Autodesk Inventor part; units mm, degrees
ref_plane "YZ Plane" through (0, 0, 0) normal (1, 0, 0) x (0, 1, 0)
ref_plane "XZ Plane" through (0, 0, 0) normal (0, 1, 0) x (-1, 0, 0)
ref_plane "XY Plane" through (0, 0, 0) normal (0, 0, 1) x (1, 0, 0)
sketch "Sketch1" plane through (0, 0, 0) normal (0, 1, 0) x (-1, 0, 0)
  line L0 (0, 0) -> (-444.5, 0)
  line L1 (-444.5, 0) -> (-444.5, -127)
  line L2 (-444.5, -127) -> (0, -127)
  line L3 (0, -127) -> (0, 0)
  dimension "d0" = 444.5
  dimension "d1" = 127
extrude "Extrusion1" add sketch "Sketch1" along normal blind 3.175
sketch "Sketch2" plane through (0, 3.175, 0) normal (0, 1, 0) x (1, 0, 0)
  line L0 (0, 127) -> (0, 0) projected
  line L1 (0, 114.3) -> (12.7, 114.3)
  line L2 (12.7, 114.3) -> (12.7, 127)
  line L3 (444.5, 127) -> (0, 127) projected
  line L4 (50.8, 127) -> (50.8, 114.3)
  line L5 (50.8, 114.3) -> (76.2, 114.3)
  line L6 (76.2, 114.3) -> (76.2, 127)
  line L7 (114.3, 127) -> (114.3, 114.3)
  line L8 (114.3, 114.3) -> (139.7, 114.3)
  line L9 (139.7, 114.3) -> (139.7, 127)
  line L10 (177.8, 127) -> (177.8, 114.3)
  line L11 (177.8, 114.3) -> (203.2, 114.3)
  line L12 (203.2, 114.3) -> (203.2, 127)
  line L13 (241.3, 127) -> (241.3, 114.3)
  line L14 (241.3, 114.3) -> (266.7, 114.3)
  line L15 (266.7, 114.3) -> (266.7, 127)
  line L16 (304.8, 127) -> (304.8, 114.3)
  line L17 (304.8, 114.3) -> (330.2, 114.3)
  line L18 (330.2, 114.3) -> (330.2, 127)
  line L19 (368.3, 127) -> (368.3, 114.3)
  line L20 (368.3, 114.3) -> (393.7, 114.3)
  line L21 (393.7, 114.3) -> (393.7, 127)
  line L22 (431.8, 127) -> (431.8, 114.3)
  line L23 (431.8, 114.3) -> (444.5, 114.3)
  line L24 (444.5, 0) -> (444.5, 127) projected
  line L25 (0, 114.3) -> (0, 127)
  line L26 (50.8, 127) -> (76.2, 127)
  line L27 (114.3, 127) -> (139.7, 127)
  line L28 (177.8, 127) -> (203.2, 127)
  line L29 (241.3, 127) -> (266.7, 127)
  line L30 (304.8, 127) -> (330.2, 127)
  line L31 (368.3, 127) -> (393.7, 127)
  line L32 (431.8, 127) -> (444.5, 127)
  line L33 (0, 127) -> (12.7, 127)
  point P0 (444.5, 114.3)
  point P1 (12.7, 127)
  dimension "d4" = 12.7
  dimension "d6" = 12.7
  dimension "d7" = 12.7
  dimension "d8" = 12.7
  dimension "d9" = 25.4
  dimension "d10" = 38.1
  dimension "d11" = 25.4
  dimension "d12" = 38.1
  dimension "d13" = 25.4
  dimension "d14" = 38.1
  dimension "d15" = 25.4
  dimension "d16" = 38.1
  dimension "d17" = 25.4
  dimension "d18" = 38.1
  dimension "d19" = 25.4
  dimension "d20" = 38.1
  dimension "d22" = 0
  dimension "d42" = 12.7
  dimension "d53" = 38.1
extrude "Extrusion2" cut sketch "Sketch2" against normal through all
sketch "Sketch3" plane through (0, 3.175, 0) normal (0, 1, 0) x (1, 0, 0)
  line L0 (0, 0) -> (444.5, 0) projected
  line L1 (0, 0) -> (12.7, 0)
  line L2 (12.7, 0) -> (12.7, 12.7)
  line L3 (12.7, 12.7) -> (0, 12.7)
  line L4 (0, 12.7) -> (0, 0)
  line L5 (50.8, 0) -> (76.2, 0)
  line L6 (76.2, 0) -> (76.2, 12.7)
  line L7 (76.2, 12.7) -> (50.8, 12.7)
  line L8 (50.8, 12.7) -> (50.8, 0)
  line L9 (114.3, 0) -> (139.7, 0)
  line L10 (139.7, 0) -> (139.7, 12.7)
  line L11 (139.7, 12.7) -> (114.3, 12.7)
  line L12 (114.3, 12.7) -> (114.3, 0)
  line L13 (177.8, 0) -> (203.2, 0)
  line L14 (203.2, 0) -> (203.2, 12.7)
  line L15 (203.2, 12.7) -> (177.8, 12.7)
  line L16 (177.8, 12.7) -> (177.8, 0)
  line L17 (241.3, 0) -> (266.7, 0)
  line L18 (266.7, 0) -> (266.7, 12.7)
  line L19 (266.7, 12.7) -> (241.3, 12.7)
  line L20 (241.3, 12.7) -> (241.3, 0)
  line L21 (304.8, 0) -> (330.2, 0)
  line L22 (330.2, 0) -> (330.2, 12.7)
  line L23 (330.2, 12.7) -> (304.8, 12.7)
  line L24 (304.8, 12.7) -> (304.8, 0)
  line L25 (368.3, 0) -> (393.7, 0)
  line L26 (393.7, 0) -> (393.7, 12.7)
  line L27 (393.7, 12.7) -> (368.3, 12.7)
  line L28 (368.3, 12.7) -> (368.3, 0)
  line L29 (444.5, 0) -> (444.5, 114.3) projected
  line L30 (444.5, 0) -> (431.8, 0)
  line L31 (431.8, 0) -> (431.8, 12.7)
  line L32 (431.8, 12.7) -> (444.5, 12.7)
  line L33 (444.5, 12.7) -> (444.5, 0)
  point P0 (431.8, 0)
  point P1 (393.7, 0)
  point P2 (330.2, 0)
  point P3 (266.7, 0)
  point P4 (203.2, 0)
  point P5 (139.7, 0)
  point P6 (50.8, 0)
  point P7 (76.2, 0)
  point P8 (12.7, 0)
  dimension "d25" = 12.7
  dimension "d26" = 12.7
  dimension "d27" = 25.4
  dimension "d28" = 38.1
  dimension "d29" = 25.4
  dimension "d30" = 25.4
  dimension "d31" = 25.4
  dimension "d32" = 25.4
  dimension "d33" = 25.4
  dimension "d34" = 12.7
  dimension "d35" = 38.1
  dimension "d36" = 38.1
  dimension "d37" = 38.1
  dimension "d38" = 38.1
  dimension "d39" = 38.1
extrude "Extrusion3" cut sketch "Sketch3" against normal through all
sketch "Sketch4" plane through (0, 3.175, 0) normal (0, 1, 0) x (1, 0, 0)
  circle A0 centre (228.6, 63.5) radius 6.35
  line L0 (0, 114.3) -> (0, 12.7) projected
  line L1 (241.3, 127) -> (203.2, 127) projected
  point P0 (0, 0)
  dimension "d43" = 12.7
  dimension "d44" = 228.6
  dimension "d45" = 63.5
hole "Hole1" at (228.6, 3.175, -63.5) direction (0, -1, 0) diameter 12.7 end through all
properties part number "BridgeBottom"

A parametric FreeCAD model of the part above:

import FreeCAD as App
import Part
import Sketcher
from FreeCAD import Vector
Q = App.Units.Quantity

doc = App.newDocument("Part")
body = doc.addObject("PartDesign::Body", "Body")

# Sketch on XZ plane
sketch1 = body.newObject("Sketcher::SketchObject", "Sketch")
sketch1.AttachmentSupport = (doc.getObject("XZ_Plane"), [""])
sketch1.MapMode = "FlatFace"
sketch1.addGeometry([
    Part.LineSegment(Vector(0, -127, 0), Vector(0, 0, 0)),
    Part.LineSegment(Vector(0, 0, 0), Vector(444, 0, 0)),
    Part.LineSegment(Vector(444, 0, 0), Vector(444, -127, 0)),
    Part.LineSegment(Vector(444, -127, 0), Vector(0, -127, 0)),
], False)
sketch1.addConstraint([
    Sketcher.Constraint("Coincident", 0, 2, 1, 1),
    Sketcher.Constraint("Coincident", 1, 2, 2, 1),
    Sketcher.Constraint("Coincident", 2, 2, 3, 1),
    Sketcher.Constraint("Coincident", 3, 2, 0, 1),
    Sketcher.Constraint("Vertical", 0),
    Sketcher.Constraint("Horizontal", 1),
    Sketcher.Constraint("Vertical", 2),
    Sketcher.Constraint("Horizontal", 3),
    Sketcher.Constraint("Coincident", 0, 2, -1, 1),
    Sketcher.Constraint("DistanceY", 0, 1, 0, 2, Q("5 in")),
    Sketcher.Constraint("DistanceX", 1, 1, 1, 2, Q("17.5 in")),
])
pad1 = body.newObject("PartDesign::Pad", "Pad")
pad1.Profile = sketch1
pad1.Length = Q("0.125 in")
pad1.Reversed = True

# Sketch on XZ plane
sketch2 = body.newObject("Sketcher::SketchObject", "Sketch001")
sketch2.AttachmentSupport = (doc.getObject("XZ_Plane"), [""])
sketch2.MapMode = "FlatFace"
sketch2.AttachmentOffset = App.Placement(Vector(0, 0, -0.125 * 25.4), App.Rotation())
sketch2.addGeometry([
    Part.LineSegment(Vector(13, -127, 0), Vector(0, -127, 0)),  # 0
    Part.LineSegment(Vector(0, -127, 0), Vector(0, -114, 0)),  # 1
    Part.LineSegment(Vector(0, -114, 0), Vector(13, -114, 0)),  # 2
    Part.LineSegment(Vector(13, -114, 0), Vector(13, -127, 0)),  # 3
    Part.LineSegment(Vector(444, -127, 0), Vector(432, -127, 0)),  # 4
    Part.LineSegment(Vector(432, -127, 0), Vector(432, -114, 0)),  # 5
    Part.LineSegment(Vector(432, -114, 0), Vector(444, -114, 0)),  # 6
    Part.LineSegment(Vector(444, -114, 0), Vector(444, -127, 0)),  # 7
    Part.LineSegment(Vector(394, -127, 0), Vector(368, -127, 0)),  # 8
    Part.LineSegment(Vector(368, -127, 0), Vector(368, -114, 0)),  # 9
    Part.LineSegment(Vector(368, -114, 0), Vector(394, -114, 0)),  # 10
    Part.LineSegment(Vector(394, -114, 0), Vector(394, -127, 0)),  # 11
    Part.LineSegment(Vector(330, -127, 0), Vector(305, -127, 0)),  # 12
    Part.LineSegment(Vector(305, -127, 0), Vector(305, -114, 0)),  # 13
    Part.LineSegment(Vector(305, -114, 0), Vector(330, -114, 0)),  # 14
    Part.LineSegment(Vector(330, -114, 0), Vector(330, -127, 0)),  # 15
    Part.LineSegment(Vector(267, -127, 0), Vector(241, -127, 0)),  # 16
    Part.LineSegment(Vector(241, -127, 0), Vector(241, -114, 0)),  # 17
    Part.LineSegment(Vector(241, -114, 0), Vector(267, -114, 0)),  # 18
    Part.LineSegment(Vector(267, -114, 0), Vector(267, -127, 0)),  # 19
    Part.LineSegment(Vector(203, -127, 0), Vector(178, -127, 0)),  # 20
    Part.LineSegment(Vector(178, -127, 0), Vector(178, -114, 0)),  # 21
    Part.LineSegment(Vector(178, -114, 0), Vector(203, -114, 0)),  # 22
    Part.LineSegment(Vector(203, -114, 0), Vector(203, -127, 0)),  # 23
    Part.LineSegment(Vector(140, -127, 0), Vector(114, -127, 0)),  # 24
    Part.LineSegment(Vector(114, -127, 0), Vector(114, -114, 0)),  # 25
    Part.LineSegment(Vector(114, -114, 0), Vector(140, -114, 0)),  # 26
    Part.LineSegment(Vector(140, -114, 0), Vector(140, -127, 0)),  # 27
    Part.LineSegment(Vector(76, -127, 0), Vector(51, -127, 0)),  # 28
    Part.LineSegment(Vector(51, -127, 0), Vector(51, -114, 0)),  # 29
    Part.LineSegment(Vector(51, -114, 0), Vector(76, -114, 0)),  # 30
    Part.LineSegment(Vector(76, -114, 0), Vector(76, -127, 0)),  # 31
], False)
sketch2.addConstraint([
    Sketcher.Constraint("Coincident", 0, 2, 1, 1),
    Sketcher.Constraint("Coincident", 1, 2, 2, 1),
    Sketcher.Constraint("Coincident", 2, 2, 3, 1),
    Sketcher.Constraint("Coincident", 3, 2, 0, 1),
    Sketcher.Constraint("Coincident", 4, 2, 5, 1),
    Sketcher.Constraint("Coincident", 5, 2, 6, 1),
    Sketcher.Constraint("Coincident", 6, 2, 7, 1),
    Sketcher.Constraint("Coincident", 7, 2, 4, 1),
    Sketcher.Constraint("Coincident", 8, 2, 9, 1),
    Sketcher.Constraint("Coincident", 9, 2, 10, 1),
    Sketcher.Constraint("Coincident", 10, 2, 11, 1),
    Sketcher.Constraint("Coincident", 11, 2, 8, 1),
    Sketcher.Constraint("Coincident", 12, 2, 13, 1),
    Sketcher.Constraint("Coincident", 13, 2, 14, 1),
    Sketcher.Constraint("Coincident", 14, 2, 15, 1),
    Sketcher.Constraint("Coincident", 15, 2, 12, 1),
    Sketcher.Constraint("Coincident", 16, 2, 17, 1),
    Sketcher.Constraint("Coincident", 17, 2, 18, 1),
    Sketcher.Constraint("Coincident", 18, 2, 19, 1),
    Sketcher.Constraint("Coincident", 19, 2, 16, 1),
    Sketcher.Constraint("Coincident", 20, 2, 21, 1),
    Sketcher.Constraint("Coincident", 21, 2, 22, 1),
    Sketcher.Constraint("Coincident", 22, 2, 23, 1),
    Sketcher.Constraint("Coincident", 23, 2, 20, 1),
    Sketcher.Constraint("Coincident", 24, 2, 25, 1),
    Sketcher.Constraint("Coincident", 25, 2, 26, 1),
    Sketcher.Constraint("Coincident", 26, 2, 27, 1),
    Sketcher.Constraint("Coincident", 27, 2, 24, 1),
    Sketcher.Constraint("Coincident", 28, 2, 29, 1),
    Sketcher.Constraint("Coincident", 29, 2, 30, 1),
    Sketcher.Constraint("Coincident", 30, 2, 31, 1),
    Sketcher.Constraint("Coincident", 31, 2, 28, 1),
    Sketcher.Constraint("Horizontal", 0),
    Sketcher.Constraint("Vertical", 1),
    Sketcher.Constraint("Horizontal", 2),
    Sketcher.Constraint("Vertical", 3),
    Sketcher.Constraint("Horizontal", 4),
    Sketcher.Constraint("Vertical", 5),
    Sketcher.Constraint("Horizontal", 6),
    Sketcher.Constraint("Vertical", 7),
    Sketcher.Constraint("Horizontal", 8),
    Sketcher.Constraint("Vertical", 9),
    Sketcher.Constraint("Horizontal", 10),
    Sketcher.Constraint("Vertical", 11),
    Sketcher.Constraint("Horizontal", 12),
    Sketcher.Constraint("Vertical", 13),
    Sketcher.Constraint("Horizontal", 14),
    Sketcher.Constraint("Vertical", 15),
    Sketcher.Constraint("Horizontal", 16),
    Sketcher.Constraint("Vertical", 17),
    Sketcher.Constraint("Horizontal", 18),
    Sketcher.Constraint("Vertical", 19),
    Sketcher.Constraint("Horizontal", 20),
    Sketcher.Constraint("Vertical", 21),
    Sketcher.Constraint("Horizontal", 22),
    Sketcher.Constraint("Vertical", 23),
    Sketcher.Constraint("Horizontal", 24),
    Sketcher.Constraint("Vertical", 25),
    Sketcher.Constraint("Horizontal", 26),
    Sketcher.Constraint("Vertical", 27),
    Sketcher.Constraint("Horizontal", 28),
    Sketcher.Constraint("Vertical", 29),
    Sketcher.Constraint("Horizontal", 30),
    Sketcher.Constraint("Vertical", 31),
    Sketcher.Constraint("PointOnObject", 0, 2, -2),
    Sketcher.Constraint("Horizontal", 3, 2, 4, 2),
    Sketcher.Constraint("Horizontal", 2, 2, 5, 2),
    Sketcher.Constraint("Horizontal", 7, 2, 8, 2),
    Sketcher.Constraint("Horizontal", 6, 2, 9, 2),
    Sketcher.Constraint("Horizontal", 11, 2, 12, 2),
    Sketcher.Constraint("Horizontal", 10, 2, 13, 2),
    Sketcher.Constraint("Horizontal", 15, 2, 16, 2),
    Sketcher.Constraint("Horizontal", 14, 2, 17, 2),
    Sketcher.Constraint("Horizontal", 19, 2, 20, 2),
    Sketcher.Constraint("Horizontal", 18, 2, 21, 2),
    Sketcher.Constraint("Horizontal", 23, 2, 24, 2),
    Sketcher.Constraint("Horizontal", 22, 2, 25, 2),
    Sketcher.Constraint("Horizontal", 27, 2, 28, 2),
    Sketcher.Constraint("Horizontal", 26, 2, 29, 2),
    Sketcher.Constraint("Equal", 2, 4),
    Sketcher.Constraint("Equal", 10, 12),
    Sketcher.Constraint("Equal", 14, 16),
    Sketcher.Constraint("Equal", 18, 20),
    Sketcher.Constraint("Equal", 22, 24),
    Sketcher.Constraint("Equal", 26, 28),
    Sketcher.Constraint("Equal", 6, 1),
    Sketcher.Constraint("DistanceX", 8, 2, 8, 1, Q("1 in")),
    Sketcher.Constraint("DistanceX", 0, 2, 0, 1, Q("0.5 in")),
    Sketcher.Constraint("DistanceX", 10, 2, 5, 2, Q("1.5 in")),
    Sketcher.Constraint("DistanceX", 14, 2, 9, 2, Q("1.5 in")),
    Sketcher.Constraint("DistanceX", 18, 2, 13, 2, Q("1.5 in")),
    Sketcher.Constraint("DistanceX", 22, 2, 17, 2, Q("1.5 in")),
    Sketcher.Constraint("DistanceX", 26, 2, 21, 2, Q("1.5 in")),
    Sketcher.Constraint("DistanceX", 3, 2, 28, 2, Q("1.5 in")),
    Sketcher.Constraint("DistanceX", 30, 2, 25, 2, Q("1.5 in")),
    Sketcher.Constraint("DistanceY", 0, 2, -1, 1, Q("5 in")),
])
pocket1 = body.newObject("PartDesign::Pocket", "Pocket")
pocket1.Profile = sketch2
pocket1.Type = "ThroughAll"
pocket1.Reversed = True

# Sketch on XZ plane
sketch3 = body.newObject("Sketcher::SketchObject", "Sketch002")
sketch3.AttachmentSupport = (doc.getObject("XZ_Plane"), [""])
sketch3.MapMode = "FlatFace"
sketch3.AttachmentOffset = App.Placement(Vector(0, 0, -0.125 * 25.4), App.Rotation())
sketch3.addGeometry([
    Part.LineSegment(Vector(0, -13, 0), Vector(0, 0, 0)),  # 0
    Part.LineSegment(Vector(0, 0, 0), Vector(13, 0, 0)),  # 1
    Part.LineSegment(Vector(13, 0, 0), Vector(13, -13, 0)),  # 2
    Part.LineSegment(Vector(13, -13, 0), Vector(0, -13, 0)),  # 3
    Part.LineSegment(Vector(432, -13, 0), Vector(432, 0, 0)),  # 4
    Part.LineSegment(Vector(432, 0, 0), Vector(444, 0, 0)),  # 5
    Part.LineSegment(Vector(444, 0, 0), Vector(444, -13, 0)),  # 6
    Part.LineSegment(Vector(444, -13, 0), Vector(432, -13, 0)),  # 7
    Part.LineSegment(Vector(368, -13, 0), Vector(368, 0, 0)),  # 8
    Part.LineSegment(Vector(368, 0, 0), Vector(394, 0, 0)),  # 9
    Part.LineSegment(Vector(394, 0, 0), Vector(394, -13, 0)),  # 10
    Part.LineSegment(Vector(394, -13, 0), Vector(368, -13, 0)),  # 11
    Part.LineSegment(Vector(305, -13, 0), Vector(305, 0, 0)),  # 12
    Part.LineSegment(Vector(305, 0, 0), Vector(330, 0, 0)),  # 13
    Part.LineSegment(Vector(330, 0, 0), Vector(330, -13, 0)),  # 14
    Part.LineSegment(Vector(330, -13, 0), Vector(305, -13, 0)),  # 15
    Part.LineSegment(Vector(241, -13, 0), Vector(241, 0, 0)),  # 16
    Part.LineSegment(Vector(241, 0, 0), Vector(267, 0, 0)),  # 17
    Part.LineSegment(Vector(267, 0, 0), Vector(267, -13, 0)),  # 18
    Part.LineSegment(Vector(267, -13, 0), Vector(241, -13, 0)),  # 19
    Part.LineSegment(Vector(178, -13, 0), Vector(178, 0, 0)),  # 20
    Part.LineSegment(Vector(178, 0, 0), Vector(203, 0, 0)),  # 21
    Part.LineSegment(Vector(203, 0, 0), Vector(203, -13, 0)),  # 22
    Part.LineSegment(Vector(203, -13, 0), Vector(178, -13, 0)),  # 23
    Part.LineSegment(Vector(114, -13, 0), Vector(114, 0, 0)),  # 24
    Part.LineSegment(Vector(114, 0, 0), Vector(140, 0, 0)),  # 25
    Part.LineSegment(Vector(140, 0, 0), Vector(140, -13, 0)),  # 26
    Part.LineSegment(Vector(140, -13, 0), Vector(114, -13, 0)),  # 27
    Part.LineSegment(Vector(51, -13, 0), Vector(51, 0, 0)),  # 28
    Part.LineSegment(Vector(51, 0, 0), Vector(76, 0, 0)),  # 29
    Part.LineSegment(Vector(76, 0, 0), Vector(76, -13, 0)),  # 30
    Part.LineSegment(Vector(76, -13, 0), Vector(51, -13, 0)),  # 31
], False)
sketch3.addConstraint([
    Sketcher.Constraint("Coincident", 0, 2, 1, 1),
    Sketcher.Constraint("Coincident", 1, 2, 2, 1),
    Sketcher.Constraint("Coincident", 2, 2, 3, 1),
    Sketcher.Constraint("Coincident", 3, 2, 0, 1),
    Sketcher.Constraint("Coincident", 4, 2, 5, 1),
    Sketcher.Constraint("Coincident", 5, 2, 6, 1),
    Sketcher.Constraint("Coincident", 6, 2, 7, 1),
    Sketcher.Constraint("Coincident", 7, 2, 4, 1),
    Sketcher.Constraint("Coincident", 8, 2, 9, 1),
    Sketcher.Constraint("Coincident", 9, 2, 10, 1),
    Sketcher.Constraint("Coincident", 10, 2, 11, 1),
    Sketcher.Constraint("Coincident", 11, 2, 8, 1),
    Sketcher.Constraint("Coincident", 12, 2, 13, 1),
    Sketcher.Constraint("Coincident", 13, 2, 14, 1),
    Sketcher.Constraint("Coincident", 14, 2, 15, 1),
    Sketcher.Constraint("Coincident", 15, 2, 12, 1),
    Sketcher.Constraint("Coincident", 16, 2, 17, 1),
    Sketcher.Constraint("Coincident", 17, 2, 18, 1),
    Sketcher.Constraint("Coincident", 18, 2, 19, 1),
    Sketcher.Constraint("Coincident", 19, 2, 16, 1),
    Sketcher.Constraint("Coincident", 20, 2, 21, 1),
    Sketcher.Constraint("Coincident", 21, 2, 22, 1),
    Sketcher.Constraint("Coincident", 22, 2, 23, 1),
    Sketcher.Constraint("Coincident", 23, 2, 20, 1),
    Sketcher.Constraint("Coincident", 24, 2, 25, 1),
    Sketcher.Constraint("Coincident", 25, 2, 26, 1),
    Sketcher.Constraint("Coincident", 26, 2, 27, 1),
    Sketcher.Constraint("Coincident", 27, 2, 24, 1),
    Sketcher.Constraint("Coincident", 28, 2, 29, 1),
    Sketcher.Constraint("Coincident", 29, 2, 30, 1),
    Sketcher.Constraint("Coincident", 30, 2, 31, 1),
    Sketcher.Constraint("Coincident", 31, 2, 28, 1),
    Sketcher.Constraint("Vertical", 0),
    Sketcher.Constraint("Horizontal", 1),
    Sketcher.Constraint("Vertical", 2),
    Sketcher.Constraint("Horizontal", 3),
    Sketcher.Constraint("Vertical", 4),
    Sketcher.Constraint("Horizontal", 5),
    Sketcher.Constraint("Vertical", 6),
    Sketcher.Constraint("Horizontal", 7),
    Sketcher.Constraint("Vertical", 8),
    Sketcher.Constraint("Horizontal", 9),
    Sketcher.Constraint("Vertical", 10),
    Sketcher.Constraint("Horizontal", 11),
    Sketcher.Constraint("Vertical", 12),
    Sketcher.Constraint("Horizontal", 13),
    Sketcher.Constraint("Vertical", 14),
    Sketcher.Constraint("Horizontal", 15),
    Sketcher.Constraint("Vertical", 16),
    Sketcher.Constraint("Horizontal", 17),
    Sketcher.Constraint("Vertical", 18),
    Sketcher.Constraint("Horizontal", 19),
    Sketcher.Constraint("Vertical", 20),
    Sketcher.Constraint("Horizontal", 21),
    Sketcher.Constraint("Vertical", 22),
    Sketcher.Constraint("Horizontal", 23),
    Sketcher.Constraint("Vertical", 24),
    Sketcher.Constraint("Horizontal", 25),
    Sketcher.Constraint("Vertical", 26),
    Sketcher.Constraint("Horizontal", 27),
    Sketcher.Constraint("Vertical", 28),
    Sketcher.Constraint("Horizontal", 29),
    Sketcher.Constraint("Vertical", 30),
    Sketcher.Constraint("Horizontal", 31),
    Sketcher.Constraint("Coincident", 0, 2, -1, 1),
    Sketcher.Constraint("PointOnObject", 4, 2, -1),
    Sketcher.Constraint("PointOnObject", 8, 2, -1),
    Sketcher.Constraint("PointOnObject", 12, 2, -1),
    Sketcher.Constraint("PointOnObject", 16, 2, -1),
    Sketcher.Constraint("PointOnObject", 20, 2, -1),
    Sketcher.Constraint("PointOnObject", 24, 2, -1),
    Sketcher.Constraint("PointOnObject", 28, 2, -1),
    Sketcher.Constraint("Horizontal", 3, 2, 6, 2),
    Sketcher.Constraint("Horizontal", 7, 2, 10, 2),
    Sketcher.Constraint("Horizontal", 11, 2, 14, 2),
    Sketcher.Constraint("Horizontal", 15, 2, 18, 2),
    Sketcher.Constraint("Horizontal", 19, 2, 22, 2),
    Sketcher.Constraint("Horizontal", 23, 2, 26, 2),
    Sketcher.Constraint("Horizontal", 27, 2, 30, 2),
    Sketcher.Constraint("Equal", 3, 5),
    Sketcher.Constraint("Equal", 11, 13),
    Sketcher.Constraint("Equal", 15, 17),
    Sketcher.Constraint("Equal", 19, 21),
    Sketcher.Constraint("Equal", 23, 25),
    Sketcher.Constraint("Equal", 27, 29),
    Sketcher.Constraint("Equal", 7, 0),
    Sketcher.Constraint("DistanceX", 9, 1, 9, 2, Q("1 in")),
    Sketcher.Constraint("DistanceX", 1, 1, 1, 2, Q("0.5 in")),
    Sketcher.Constraint("DistanceX", 9, 2, 4, 2, Q("1.5 in")),
    Sketcher.Constraint("DistanceX", 13, 2, 8, 2, Q("1.5 in")),
    Sketcher.Constraint("DistanceX", 17, 2, 12, 2, Q("1.5 in")),
    Sketcher.Constraint("DistanceX", 21, 2, 16, 2, Q("1.5 in")),
    Sketcher.Constraint("DistanceX", 25, 2, 20, 2, Q("1.5 in")),
    Sketcher.Constraint("DistanceX", 1, 2, 28, 2, Q("1.5 in")),
    Sketcher.Constraint("DistanceX", 29, 2, 24, 2, Q("1.5 in")),
])
pocket2 = body.newObject("PartDesign::Pocket", "Pocket001")
pocket2.Profile = sketch3
pocket2.Type = "ThroughAll"
pocket2.Reversed = True

# Sketch on XZ plane
sketch4 = body.newObject("Sketcher::SketchObject", "Sketch003")
sketch4.AttachmentSupport = (doc.getObject("XZ_Plane"), [""])
sketch4.MapMode = "FlatFace"
sketch4.AttachmentOffset = App.Placement(Vector(0, 0, -0.125 * 25.4), App.Rotation())
sketch4.addGeometry(Part.Circle(Vector(229, -64, 0), Vector(0, 0, 1), 6), False)
sketch4.addConstraint([
    Sketcher.Constraint("Diameter", 0, Q("0.5 in")),
    Sketcher.Constraint("DistanceX", -1, 1, 0, 3, Q("9 in")),
    Sketcher.Constraint("DistanceY", 0, 3, -1, 1, Q("2.5 in")),
])
doc.recompute()
hole = body.newObject("PartDesign::Hole", "Hole")
hole.Profile = sketch4
hole.ThreadType = "None"
hole.Diameter = Q("0.5 in")
hole.DepthType = "ThroughAll"
hole.Reversed = True

doc.recompute()
